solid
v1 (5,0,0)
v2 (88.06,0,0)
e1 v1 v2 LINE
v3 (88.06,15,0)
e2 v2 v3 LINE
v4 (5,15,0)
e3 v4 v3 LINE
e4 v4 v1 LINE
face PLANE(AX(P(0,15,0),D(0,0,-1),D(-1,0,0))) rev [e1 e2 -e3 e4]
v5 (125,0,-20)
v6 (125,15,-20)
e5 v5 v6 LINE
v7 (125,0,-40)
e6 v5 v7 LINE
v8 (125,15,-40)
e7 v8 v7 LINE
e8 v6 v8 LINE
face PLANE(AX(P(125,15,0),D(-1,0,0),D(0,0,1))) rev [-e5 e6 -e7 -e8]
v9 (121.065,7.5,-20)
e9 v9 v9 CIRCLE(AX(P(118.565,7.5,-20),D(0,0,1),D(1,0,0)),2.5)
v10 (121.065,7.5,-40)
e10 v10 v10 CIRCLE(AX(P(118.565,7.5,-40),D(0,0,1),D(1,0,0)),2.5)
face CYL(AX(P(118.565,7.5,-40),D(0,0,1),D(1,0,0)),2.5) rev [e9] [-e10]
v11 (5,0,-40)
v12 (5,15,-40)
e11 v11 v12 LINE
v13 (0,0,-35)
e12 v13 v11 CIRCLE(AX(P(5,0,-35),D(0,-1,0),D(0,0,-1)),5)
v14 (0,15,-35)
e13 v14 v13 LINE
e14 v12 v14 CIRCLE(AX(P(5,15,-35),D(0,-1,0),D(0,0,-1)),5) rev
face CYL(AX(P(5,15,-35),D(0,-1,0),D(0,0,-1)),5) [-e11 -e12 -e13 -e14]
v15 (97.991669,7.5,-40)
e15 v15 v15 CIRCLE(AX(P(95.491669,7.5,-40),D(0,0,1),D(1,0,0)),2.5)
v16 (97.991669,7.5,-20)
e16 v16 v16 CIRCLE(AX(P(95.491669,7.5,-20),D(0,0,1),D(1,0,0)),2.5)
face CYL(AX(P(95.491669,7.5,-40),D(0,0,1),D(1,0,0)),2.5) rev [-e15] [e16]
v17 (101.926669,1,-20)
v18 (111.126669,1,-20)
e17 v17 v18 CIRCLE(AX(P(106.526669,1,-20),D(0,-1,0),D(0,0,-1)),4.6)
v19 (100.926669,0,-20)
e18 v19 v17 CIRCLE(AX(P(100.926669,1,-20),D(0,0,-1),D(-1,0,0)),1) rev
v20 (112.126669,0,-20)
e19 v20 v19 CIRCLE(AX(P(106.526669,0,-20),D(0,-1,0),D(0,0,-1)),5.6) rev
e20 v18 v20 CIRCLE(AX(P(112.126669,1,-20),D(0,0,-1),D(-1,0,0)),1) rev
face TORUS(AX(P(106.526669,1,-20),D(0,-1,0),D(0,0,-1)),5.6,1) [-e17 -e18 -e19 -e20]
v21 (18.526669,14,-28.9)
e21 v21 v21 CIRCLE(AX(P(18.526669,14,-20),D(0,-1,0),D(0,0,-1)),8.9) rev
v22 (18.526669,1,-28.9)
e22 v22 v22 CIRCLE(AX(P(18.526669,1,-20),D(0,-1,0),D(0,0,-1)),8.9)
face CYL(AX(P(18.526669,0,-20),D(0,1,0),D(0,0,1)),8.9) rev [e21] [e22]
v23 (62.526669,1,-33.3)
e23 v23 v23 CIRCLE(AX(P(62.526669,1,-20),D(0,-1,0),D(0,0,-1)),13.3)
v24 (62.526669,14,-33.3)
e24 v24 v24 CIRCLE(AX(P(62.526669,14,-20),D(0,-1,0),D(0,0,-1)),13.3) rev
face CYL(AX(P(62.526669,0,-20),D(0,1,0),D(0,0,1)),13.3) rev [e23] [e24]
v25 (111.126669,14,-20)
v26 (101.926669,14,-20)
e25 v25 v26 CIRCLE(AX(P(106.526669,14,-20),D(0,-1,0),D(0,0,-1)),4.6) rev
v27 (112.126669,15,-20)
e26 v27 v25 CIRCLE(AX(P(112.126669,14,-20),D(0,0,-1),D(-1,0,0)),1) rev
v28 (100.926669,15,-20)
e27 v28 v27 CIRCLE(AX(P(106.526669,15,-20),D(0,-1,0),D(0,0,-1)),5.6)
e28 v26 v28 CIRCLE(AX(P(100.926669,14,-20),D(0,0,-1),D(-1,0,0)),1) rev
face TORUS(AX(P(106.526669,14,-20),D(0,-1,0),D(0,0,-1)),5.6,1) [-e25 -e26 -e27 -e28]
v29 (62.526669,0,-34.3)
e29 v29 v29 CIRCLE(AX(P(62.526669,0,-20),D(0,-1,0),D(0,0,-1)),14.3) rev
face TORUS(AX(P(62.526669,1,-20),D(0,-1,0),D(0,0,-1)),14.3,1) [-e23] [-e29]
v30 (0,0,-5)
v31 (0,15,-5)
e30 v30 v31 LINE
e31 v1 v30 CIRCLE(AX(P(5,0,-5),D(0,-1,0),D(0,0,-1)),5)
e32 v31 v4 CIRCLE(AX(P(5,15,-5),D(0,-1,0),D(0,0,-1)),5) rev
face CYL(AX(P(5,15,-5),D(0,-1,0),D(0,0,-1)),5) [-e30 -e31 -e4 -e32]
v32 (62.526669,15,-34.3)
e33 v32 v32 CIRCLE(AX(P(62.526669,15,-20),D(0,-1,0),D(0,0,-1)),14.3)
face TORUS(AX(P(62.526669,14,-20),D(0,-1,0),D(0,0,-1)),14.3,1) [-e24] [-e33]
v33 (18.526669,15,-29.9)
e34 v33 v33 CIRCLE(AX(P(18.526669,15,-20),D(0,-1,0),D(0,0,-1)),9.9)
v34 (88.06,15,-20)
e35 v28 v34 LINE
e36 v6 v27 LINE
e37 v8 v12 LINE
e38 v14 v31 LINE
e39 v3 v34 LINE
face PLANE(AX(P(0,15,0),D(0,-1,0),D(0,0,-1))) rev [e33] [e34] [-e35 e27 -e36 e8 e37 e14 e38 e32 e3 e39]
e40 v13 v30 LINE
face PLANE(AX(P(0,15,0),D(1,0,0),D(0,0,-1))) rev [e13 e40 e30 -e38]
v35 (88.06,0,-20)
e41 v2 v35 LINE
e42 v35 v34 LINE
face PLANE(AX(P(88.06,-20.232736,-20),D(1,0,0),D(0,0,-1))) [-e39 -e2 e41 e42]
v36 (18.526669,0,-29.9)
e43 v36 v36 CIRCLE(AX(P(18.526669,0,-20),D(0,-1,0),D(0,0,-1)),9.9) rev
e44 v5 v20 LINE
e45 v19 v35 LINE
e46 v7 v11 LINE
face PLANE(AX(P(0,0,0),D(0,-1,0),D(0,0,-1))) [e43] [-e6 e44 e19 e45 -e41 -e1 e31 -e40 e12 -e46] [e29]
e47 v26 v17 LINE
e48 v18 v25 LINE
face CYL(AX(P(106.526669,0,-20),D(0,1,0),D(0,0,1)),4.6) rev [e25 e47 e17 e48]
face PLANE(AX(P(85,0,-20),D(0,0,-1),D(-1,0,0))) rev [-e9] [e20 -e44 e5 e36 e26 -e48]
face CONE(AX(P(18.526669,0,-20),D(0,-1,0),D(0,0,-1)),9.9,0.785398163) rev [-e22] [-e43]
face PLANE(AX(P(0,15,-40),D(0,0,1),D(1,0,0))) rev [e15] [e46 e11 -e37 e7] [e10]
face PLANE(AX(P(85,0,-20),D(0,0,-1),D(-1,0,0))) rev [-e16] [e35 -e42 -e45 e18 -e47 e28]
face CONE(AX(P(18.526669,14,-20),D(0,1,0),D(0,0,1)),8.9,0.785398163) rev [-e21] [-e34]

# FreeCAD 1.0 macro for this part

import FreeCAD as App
import Part
import Sketcher
Q = App.Units.Quantity


def edges_at(feature, points):
    """Names of the edges that pass closest to the given points."""
    edges = feature.Shape.Edges
    near = lambda p: min(range(len(edges)), key=lambda i: edges[i].distToShape(Part.Vertex(*p))[0])
    return sorted({f"Edge{near(p) + 1}" for p in points})


def add_polygon(sketch, points):
    """Adds a closed chain of lines whose ends are joined by coincident constraints."""
    first, n = sketch.GeometryCount, len(points)
    for a, b in zip(points, points[1:] + points[:1]):
        sketch.addGeometry(Part.LineSegment(App.Vector(*a, 0), App.Vector(*b, 0)), False)
    for i in range(n):
        sketch.addConstraint(Sketcher.Constraint("Coincident", first + i, 2, first + (i + 1) % n, 1))

doc = App.newDocument("Part")
body = doc.addObject("PartDesign::Body", "Body")

# Sketch on XZ plane
sketch1 = body.newObject("Sketcher::SketchObject", "Sketch")
sketch1.AttachmentSupport = (doc.getObject("XZ_Plane"), [""])
sketch1.MapMode = "FlatFace"
add_polygon(sketch1, [(0, -40), (0, 0), (125, 0), (125, -40)])  # lines 0-3
sketch1.addConstraint([
    Sketcher.Constraint("Vertical", 0),
    Sketcher.Constraint("Horizontal", 1),
    Sketcher.Constraint("Vertical", 2),
    Sketcher.Constraint("Horizontal", 3),
    Sketcher.Constraint("Coincident", 0, 2, -1, 1),
    Sketcher.Constraint("DistanceX", 1, 1, 1, 2, Q("125 mm")),
    Sketcher.Constraint("DistanceY", 0, 1, 0, 2, Q("40 mm")),
])
pad1 = body.newObject("PartDesign::Pad", "Pad")
pad1.Profile = sketch1
pad1.Length = 15
pad1.Reversed = True

# Sketch on XZ plane
sketch2 = body.newObject("Sketcher::SketchObject", "Sketch001")
sketch2.AttachmentSupport = (doc.getObject("XZ_Plane"), [""])
sketch2.MapMode = "FlatFace"
sketch2.AttachmentOffset = App.Placement(App.Vector(0, 0, -15), App.Rotation())
sketch2.addGeometry([
    Part.Circle(App.Vector(18.5, -20, 0), App.Vector(0, 0, 1), 8.9),
    Part.Circle(App.Vector(106.5, -20, 0), App.Vector(0, 0, 1), 4.6),
    Part.Circle(App.Vector(62.5, -20, 0), App.Vector(0, 0, 1), 13.3),
], False)
sketch2.addConstraint([
    Sketcher.Constraint("Horizontal", 0, 3, 1, 3),
    Sketcher.Constraint("Horizontal", 1, 3, 2, 3),
    Sketcher.Constraint("Diameter", 0, Q("17.8 mm")),
    Sketcher.Constraint("Diameter", 1, Q("9.2 mm")),
    Sketcher.Constraint("Diameter", 2, Q("26.6 mm")),
    Sketcher.Constraint("DistanceY", 0, 3, -1, 1, Q("20 mm")),
    Sketcher.Constraint("DistanceX", 0, 3, 1, 3, Q("88 mm")),
    Sketcher.Constraint("DistanceX", 0, 3, 2, 3, Q("44 mm")),
    Sketcher.Constraint("DistanceX", -1, 1, 0, 3, Q("18.526669 mm")),
])
pocket1 = body.newObject("PartDesign::Pocket", "Pocket")
pocket1.Profile = sketch2
pocket1.Type = "ThroughAll"
pocket1.Reversed = True
doc.recompute()

chamfer = body.newObject("PartDesign::Chamfer", "Chamfer")
chamfer.Base = (pocket1, edges_at(pocket1, [(18.527, 15, -28.9)]))
chamfer.Size = 1
doc.recompute()

chamfer2 = body.newObject("PartDesign::Chamfer", "Chamfer001")
chamfer2.Base = (chamfer, edges_at(chamfer, [(18.527, 0, -28.9)]))
chamfer2.Size = 1
doc.recompute()

fillet = body.newObject("PartDesign::Fillet", "Fillet")
fillet.Base = (chamfer2, edges_at(chamfer2, [
    (106.527, 0, -24.6),
    (106.527, 15, -24.6),
    (62.527, 0, -33.3),
    (62.527, 15, -33.3),
]))
fillet.Radius = 1

# Sketch on XZ plane
sketch3 = body.newObject("Sketcher::SketchObject", "Sketch002")
sketch3.AttachmentSupport = (doc.getObject("XZ_Plane"), [""])
sketch3.MapMode = "FlatFace"
sketch3.AttachmentOffset = App.Placement(App.Vector(0, 0, -15), App.Rotation())
add_polygon(sketch3, [(85, -20), (85, 0), (125, 0), (125, -20)])  # lines 0-3
sketch3.addConstraint([
    Sketcher.Constraint("Vertical", 0),
    Sketcher.Constraint("Horizontal", 1),
    Sketcher.Constraint("Vertical", 2),
    Sketcher.Constraint("Horizontal", 3),
    Sketcher.Constraint("PointOnObject", 0, 2, -1),
    Sketcher.Constraint("DistanceX", 1, 1, 1, 2, Q("40 mm")),
    Sketcher.Constraint("DistanceY", 0, 1, 0, 2, Q("20 mm")),
    Sketcher.Constraint("DistanceX", -1, 1, 0, 2, Q("85 mm")),
])
pocket2 = body.newObject("PartDesign::Pocket", "Pocket001")
pocket2.Profile = sketch3
pocket2.Type = "ThroughAll"
pocket2.Reversed = True
doc.recompute()

fillet2 = body.newObject("PartDesign::Fillet", "Fillet001")
fillet2.Base = (pocket2, edges_at(pocket2, [(0, 7.5, -40), (0, 7.5, 0)]))
fillet2.Radius = 5

# Sketch on XZ plane
sketch4 = body.newObject("Sketcher::SketchObject", "Sketch003")
sketch4.AttachmentSupport = (doc.getObject("XZ_Plane"), [""])
sketch4.MapMode = "FlatFace"
sketch4.AttachmentOffset = App.Placement(App.Vector(0, 0, -15), App.Rotation())
add_polygon(sketch4, [(85, -20), (85, 0), (88.1, 0), (88.1, -20)])  # lines 0-3
sketch4.addConstraint([
    Sketcher.Constraint("Vertical", 0),
    Sketcher.Constraint("Horizontal", 1),
    Sketcher.Constraint("Vertical", 2),
    Sketcher.Constraint("Horizontal", 3),
    Sketcher.Constraint("PointOnObject", 0, 2, -1),
    Sketcher.Constraint("DistanceY", 0, 1, 0, 2, Q("20 mm")),
    Sketcher.Constraint("DistanceX", -1, 1, 0, 2, Q("85 mm")),
    Sketcher.Constraint("DistanceX", 1, 1, 1, 2, Q("3.06 mm")),
])
pad2 = body.newObject("PartDesign::Pad", "Pad001")
pad2.Profile = sketch4
pad2.Length = 15

# Sketch on XY plane
sketch5 = body.newObject("Sketcher::SketchObject", "Sketch004")
sketch5.AttachmentSupport = (doc.getObject("XY_Plane"), [""])
sketch5.MapMode = "FlatFace"
sketch5.AttachmentOffset = App.Placement(App.Vector(0, 0, -20), App.Rotation())
sketch5.addGeometry([
    Part.Circle(App.Vector(118.6, 7.5, 0), App.Vector(0, 0, 1), 2.5),
    Part.Circle(App.Vector(95.5, 7.5, 0), App.Vector(0, 0, 1), 2.5),
], False)
sketch5.addConstraint([
    Sketcher.Constraint("Equal", 0, 1),
    Sketcher.Constraint("Horizontal", 0, 3, 1, 3),
    Sketcher.Constraint("Diameter", 0, Q("5 mm")),
    Sketcher.Constraint("DistanceY", -1, 1, 0, 3, Q("7.5 mm")),
    Sketcher.Constraint("DistanceX", -1, 1, 0, 3, Q("118.565 mm")),
    Sketcher.Constraint("DistanceX", -1, 1, 1, 3, Q("95.491669 mm")),
])
pocket3 = body.newObject("PartDesign::Pocket", "Pocket002")
pocket3.Profile = sketch5
pocket3.Type = "ThroughAll"

doc.recompute()
